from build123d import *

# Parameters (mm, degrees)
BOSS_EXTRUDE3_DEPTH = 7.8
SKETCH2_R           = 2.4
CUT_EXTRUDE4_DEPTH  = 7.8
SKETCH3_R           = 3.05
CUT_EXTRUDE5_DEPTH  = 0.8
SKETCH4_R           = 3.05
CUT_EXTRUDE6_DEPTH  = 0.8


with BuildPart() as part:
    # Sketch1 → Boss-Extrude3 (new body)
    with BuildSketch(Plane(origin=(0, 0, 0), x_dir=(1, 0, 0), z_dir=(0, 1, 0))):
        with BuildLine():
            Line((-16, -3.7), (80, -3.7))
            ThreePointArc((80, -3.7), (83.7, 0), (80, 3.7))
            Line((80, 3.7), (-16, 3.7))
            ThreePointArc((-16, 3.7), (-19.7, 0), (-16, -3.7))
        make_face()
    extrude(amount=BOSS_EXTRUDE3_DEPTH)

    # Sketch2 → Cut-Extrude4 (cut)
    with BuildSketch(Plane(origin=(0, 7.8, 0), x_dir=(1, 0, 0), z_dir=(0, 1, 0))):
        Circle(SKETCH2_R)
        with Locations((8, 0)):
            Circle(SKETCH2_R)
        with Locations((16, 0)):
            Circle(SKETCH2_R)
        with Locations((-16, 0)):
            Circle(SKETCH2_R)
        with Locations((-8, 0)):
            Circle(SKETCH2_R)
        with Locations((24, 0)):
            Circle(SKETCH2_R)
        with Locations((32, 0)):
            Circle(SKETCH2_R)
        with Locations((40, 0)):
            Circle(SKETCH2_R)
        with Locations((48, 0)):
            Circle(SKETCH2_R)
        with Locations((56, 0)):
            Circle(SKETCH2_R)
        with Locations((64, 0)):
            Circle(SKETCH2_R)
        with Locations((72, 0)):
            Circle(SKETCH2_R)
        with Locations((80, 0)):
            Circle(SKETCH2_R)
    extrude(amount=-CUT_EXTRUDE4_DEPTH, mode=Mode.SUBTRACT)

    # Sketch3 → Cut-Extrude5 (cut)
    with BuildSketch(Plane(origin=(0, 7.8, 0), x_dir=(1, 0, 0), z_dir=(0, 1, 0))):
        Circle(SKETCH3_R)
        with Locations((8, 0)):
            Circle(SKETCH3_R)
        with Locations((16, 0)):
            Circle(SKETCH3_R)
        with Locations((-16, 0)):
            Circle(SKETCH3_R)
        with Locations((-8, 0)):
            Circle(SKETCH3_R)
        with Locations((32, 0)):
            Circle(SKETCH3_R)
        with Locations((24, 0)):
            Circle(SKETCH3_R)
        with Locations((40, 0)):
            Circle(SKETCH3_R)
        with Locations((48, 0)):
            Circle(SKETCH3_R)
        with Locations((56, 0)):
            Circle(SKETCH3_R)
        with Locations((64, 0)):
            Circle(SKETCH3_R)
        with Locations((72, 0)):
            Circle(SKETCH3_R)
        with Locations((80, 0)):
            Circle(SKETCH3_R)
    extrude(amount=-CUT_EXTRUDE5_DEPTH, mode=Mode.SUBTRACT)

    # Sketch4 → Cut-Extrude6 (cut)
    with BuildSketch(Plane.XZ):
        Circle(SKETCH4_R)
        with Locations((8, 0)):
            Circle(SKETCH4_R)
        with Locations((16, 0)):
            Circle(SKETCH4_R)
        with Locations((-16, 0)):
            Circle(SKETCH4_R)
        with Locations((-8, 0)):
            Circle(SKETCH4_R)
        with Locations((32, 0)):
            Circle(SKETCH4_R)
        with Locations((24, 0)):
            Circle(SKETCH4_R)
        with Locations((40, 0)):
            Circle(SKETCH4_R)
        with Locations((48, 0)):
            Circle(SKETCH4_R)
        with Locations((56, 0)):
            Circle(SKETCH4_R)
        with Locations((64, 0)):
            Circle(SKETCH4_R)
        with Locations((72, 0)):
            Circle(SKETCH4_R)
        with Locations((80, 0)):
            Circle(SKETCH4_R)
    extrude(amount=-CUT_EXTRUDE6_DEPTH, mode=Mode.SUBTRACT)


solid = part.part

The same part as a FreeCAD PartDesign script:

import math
import FreeCAD as App
import Part
import Sketcher

V = App.Vector
Q = App.Units.Quantity

doc = App.newDocument("Part")
params = doc.addObject("Spreadsheet::Sheet", "Params")
for row, (alias, value) in enumerate([
    ("sketch1_radius", "3.7 mm"),
    ("sketch1_width", "96 mm"),
    ("pad1_length", "7.8 mm"),
    ("sketch2_diameter", "4.8 mm"),
    ("pocket1_length", "7.8 mm"),
    ("sketch3_diameter", "6.1 mm"),
    ("pocket2_length", "0.8 mm"),
    ("sketch4_diameter", "6.1 mm"),
    ("pocket3_length", "0.8 mm"),
], start=1):
    params.set(f"A{row}", alias)
    params.set(f"B{row}", "=" + value)
    params.setAlias(f"B{row}", alias)

body = doc.addObject("PartDesign::Body", "Body")

# Sketch on XZ plane
sketch1 = doc.addObject("Sketcher::SketchObject", "Sketch")
body.addObject(sketch1)
sketch1.AttachmentSupport = (doc.XZ_Plane, [""])
sketch1.MapMode = "FlatFace"
sketch1.addGeometry([
    Part.LineSegment(V(-16, 3.7, 0), V(80, 3.7, 0)),
    Part.ArcOfCircle(Part.Circle(V(80, 0, 0), V(0, 0, 1), 3.7), math.radians(-90), math.radians(90)),
    Part.LineSegment(V(80, -3.7, 0), V(-16, -3.7, 0)),
    Part.ArcOfCircle(Part.Circle(V(-16, 0, 0), V(0, 0, 1), 3.7), math.radians(90), math.radians(270)),
], False)
sketch1.addConstraint([
    Sketcher.Constraint("Tangent", 0, 2, 1, 2),
    Sketcher.Constraint("Tangent", 1, 1, 2, 1),
    Sketcher.Constraint("Tangent", 2, 2, 3, 2),
    Sketcher.Constraint("Tangent", 3, 1, 0, 1),
    Sketcher.Constraint("Horizontal", 0),
    Sketcher.Constraint("Horizontal", 2),
    Sketcher.Constraint("PointOnObject", 1, 3, -1),
    Sketcher.Constraint("Radius", 1, Q("3.7 mm")),
    Sketcher.Constraint("DistanceX", 0, 1, 0, 2, Q("96 mm")),
    Sketcher.Constraint("DistanceX", -1, 1, 1, 3, Q("80 mm")),
])
sketch1.setExpression("Constraints[7]", "Params.sketch1_radius")
sketch1.setExpression("Constraints[8]", "Params.sketch1_width")
pad1 = doc.addObject("PartDesign::Pad", "Pad")
body.addObject(pad1)
pad1.Profile = sketch1
pad1.setExpression("Length", "Params.pad1_length")
pad1.Reversed = True

# Sketch on XZ plane
sketch2 = doc.addObject("Sketcher::SketchObject", "Sketch001")
body.addObject(sketch2)
sketch2.AttachmentSupport = (doc.XZ_Plane, [""])
sketch2.MapMode = "FlatFace"
sketch2.AttachmentOffset = App.Placement(V(0, 0, -7.8), App.Rotation())
sketch2.addGeometry([
    Part.Circle(V(0, 0, 0), V(0, 0, 1), 2.4),  # 0
    Part.Circle(V(8, 0, 0), V(0, 0, 1), 2.4),  # 1
    Part.Circle(V(16, 0, 0), V(0, 0, 1), 2.4),  # 2
    Part.Circle(V(-16, 0, 0), V(0, 0, 1), 2.4),  # 3
    Part.Circle(V(-8, 0, 0), V(0, 0, 1), 2.4),  # 4
    Part.Circle(V(24, 0, 0), V(0, 0, 1), 2.4),  # 5
    Part.Circle(V(32, 0, 0), V(0, 0, 1), 2.4),  # 6
    Part.Circle(V(40, 0, 0), V(0, 0, 1), 2.4),  # 7
    Part.Circle(V(48, 0, 0), V(0, 0, 1), 2.4),  # 8
    Part.Circle(V(56, 0, 0), V(0, 0, 1), 2.4),  # 9
    Part.Circle(V(64, 0, 0), V(0, 0, 1), 2.4),  # 10
    Part.Circle(V(72, 0, 0), V(0, 0, 1), 2.4),  # 11
    Part.Circle(V(80, 0, 0), V(0, 0, 1), 2.4),  # 12
], False)
sketch2.addConstraint([
    Sketcher.Constraint("Coincident", 0, 3, -1, 1),
    Sketcher.Constraint("Equal", 0, 1),
    Sketcher.Constraint("Equal", 1, 2),
    Sketcher.Constraint("Equal", 2, 3),
    Sketcher.Constraint("Equal", 3, 4),
    Sketcher.Constraint("Equal", 4, 5),
    Sketcher.Constraint("Equal", 5, 6),
    Sketcher.Constraint("Equal", 6, 7),
    Sketcher.Constraint("Equal", 7, 8),
    Sketcher.Constraint("Equal", 8, 9),
    Sketcher.Constraint("Equal", 9, 10),
    Sketcher.Constraint("Equal", 10, 11),
    Sketcher.Constraint("Equal", 11, 12),
    Sketcher.Constraint("Symmetric", 2, 3, 3, 3, -1, 1),
    Sketcher.Constraint("Symmetric", 1, 3, 4, 3, -1, 1),
    Sketcher.Constraint("PointOnObject", 1, 3, -1),
    Sketcher.Constraint("PointOnObject", 2, 3, -1),
    Sketcher.Constraint("PointOnObject", 5, 3, -1),
    Sketcher.Constraint("PointOnObject", 6, 3, -1),
    Sketcher.Constraint("PointOnObject", 7, 3, -1),
    Sketcher.Constraint("PointOnObject", 8, 3, -1),
    Sketcher.Constraint("PointOnObject", 9, 3, -1),
    Sketcher.Constraint("PointOnObject", 10, 3, -1),
    Sketcher.Constraint("PointOnObject", 11, 3, -1),
    Sketcher.Constraint("PointOnObject", 12, 3, -1),
    Sketcher.Constraint("Diameter", 0, Q("4.8 mm")),
    Sketcher.Constraint("DistanceX", -1, 1, 1, 3, Q("8 mm")),
    Sketcher.Constraint("DistanceX", -1, 1, 2, 3, Q("16 mm")),
    Sketcher.Constraint("DistanceX", -1, 1, 5, 3, Q("24 mm")),
    Sketcher.Constraint("DistanceX", -1, 1, 6, 3, Q("32 mm")),
    Sketcher.Constraint("DistanceX", -1, 1, 7, 3, Q("40 mm")),
    Sketcher.Constraint("DistanceX", -1, 1, 8, 3, Q("48 mm")),
    Sketcher.Constraint("DistanceX", -1, 1, 9, 3, Q("56 mm")),
    Sketcher.Constraint("DistanceX", -1, 1, 10, 3, Q("64 mm")),
    Sketcher.Constraint("DistanceX", -1, 1, 11, 3, Q("72 mm")),
    Sketcher.Constraint("DistanceX", -1, 1, 12, 3, Q("80 mm")),
])
sketch2.setExpression("Constraints[25]", "Params.sketch2_diameter")
pocket1 = doc.addObject("PartDesign::Pocket", "Pocket")
body.addObject(pocket1)
pocket1.Profile = sketch2
pocket1.setExpression("Length", "Params.pocket1_length")
pocket1.Reversed = True

# Sketch on XZ plane
sketch3 = doc.addObject("Sketcher::SketchObject", "Sketch002")
body.addObject(sketch3)
sketch3.AttachmentSupport = (doc.XZ_Plane, [""])
sketch3.MapMode = "FlatFace"
sketch3.AttachmentOffset = App.Placement(V(0, 0, -7.8), App.Rotation())
sketch3.addGeometry([
    Part.Circle(V(0, 0, 0), V(0, 0, 1), 3),  # 0
    Part.Circle(V(8, 0, 0), V(0, 0, 1), 3),  # 1
    Part.Circle(V(16, 0, 0), V(0, 0, 1), 3),  # 2
    Part.Circle(V(-16, 0, 0), V(0, 0, 1), 3),  # 3
    Part.Circle(V(-8, 0, 0), V(0, 0, 1), 3),  # 4
    Part.Circle(V(32, 0, 0), V(0, 0, 1), 3),  # 5
    Part.Circle(V(24, 0, 0), V(0, 0, 1), 3),  # 6
    Part.Circle(V(40, 0, 0), V(0, 0, 1), 3),  # 7
    Part.Circle(V(48, 0, 0), V(0, 0, 1), 3),  # 8
    Part.Circle(V(56, 0, 0), V(0, 0, 1), 3),  # 9
    Part.Circle(V(64, 0, 0), V(0, 0, 1), 3),  # 10
    Part.Circle(V(72, 0, 0), V(0, 0, 1), 3),  # 11
    Part.Circle(V(80, 0, 0), V(0, 0, 1), 3),  # 12
], False)
sketch3.addConstraint([
    Sketcher.Constraint("Coincident", 0, 3, -1, 1),
    Sketcher.Constraint("Equal", 0, 1),
    Sketcher.Constraint("Equal", 1, 2),
    Sketcher.Constraint("Equal", 2, 3),
    Sketcher.Constraint("Equal", 3, 4),
    Sketcher.Constraint("Equal", 4, 5),
    Sketcher.Constraint("Equal", 5, 6),
    Sketcher.Constraint("Equal", 6, 7),
    Sketcher.Constraint("Equal", 7, 8),
    Sketcher.Constraint("Equal", 8, 9),
    Sketcher.Constraint("Equal", 9, 10),
    Sketcher.Constraint("Equal", 10, 11),
    Sketcher.Constraint("Equal", 11, 12),
    Sketcher.Constraint("Symmetric", 2, 3, 3, 3, -1, 1),
    Sketcher.Constraint("Symmetric", 1, 3, 4, 3, -1, 1),
    Sketcher.Constraint("PointOnObject", 1, 3, -1),
    Sketcher.Constraint("PointOnObject", 2, 3, -1),
    Sketcher.Constraint("PointOnObject", 5, 3, -1),
    Sketcher.Constraint("PointOnObject", 6, 3, -1),
    Sketcher.Constraint("PointOnObject", 7, 3, -1),
    Sketcher.Constraint("PointOnObject", 8, 3, -1),
    Sketcher.Constraint("PointOnObject", 9, 3, -1),
    Sketcher.Constraint("PointOnObject", 10, 3, -1),
    Sketcher.Constraint("PointOnObject", 11, 3, -1),
    Sketcher.Constraint("PointOnObject", 12, 3, -1),
    Sketcher.Constraint("Diameter", 0, Q("6.1 mm")),
    Sketcher.Constraint("DistanceX", -1, 1, 1, 3, Q("8 mm")),
    Sketcher.Constraint("DistanceX", -1, 1, 2, 3, Q("16 mm")),
    Sketcher.Constraint("DistanceX", -1, 1, 5, 3, Q("32 mm")),
    Sketcher.Constraint("DistanceX", -1, 1, 6, 3, Q("24 mm")),
    Sketcher.Constraint("DistanceX", -1, 1, 7, 3, Q("40 mm")),
    Sketcher.Constraint("DistanceX", -1, 1, 8, 3, Q("48 mm")),
    Sketcher.Constraint("DistanceX", -1, 1, 9, 3, Q("56 mm")),
    Sketcher.Constraint("DistanceX", -1, 1, 10, 3, Q("64 mm")),
    Sketcher.Constraint("DistanceX", -1, 1, 11, 3, Q("72 mm")),
    Sketcher.Constraint("DistanceX", -1, 1, 12, 3, Q("80 mm")),
])
sketch3.setExpression("Constraints[25]", "Params.sketch3_diameter")
pocket2 = doc.addObject("PartDesign::Pocket", "Pocket001")
body.addObject(pocket2)
pocket2.Profile = sketch3
pocket2.setExpression("Length", "Params.pocket2_length")
pocket2.Reversed = True

# Sketch on XZ plane
sketch4 = doc.addObject("Sketcher::SketchObject", "Sketch003")
body.addObject(sketch4)
sketch4.AttachmentSupport = (doc.XZ_Plane, [""])
sketch4.MapMode = "FlatFace"
sketch4.addGeometry([
    Part.Circle(V(0, 0, 0), V(0, 0, 1), 3),  # 0
    Part.Circle(V(8, 0, 0), V(0, 0, 1), 3),  # 1
    Part.Circle(V(16, 0, 0), V(0, 0, 1), 3),  # 2
    Part.Circle(V(-16, 0, 0), V(0, 0, 1), 3),  # 3
    Part.Circle(V(-8, 0, 0), V(0, 0, 1), 3),  # 4
    Part.Circle(V(32, 0, 0), V(0, 0, 1), 3),  # 5
    Part.Circle(V(24, 0, 0), V(0, 0, 1), 3),  # 6
    Part.Circle(V(40, 0, 0), V(0, 0, 1), 3),  # 7
    Part.Circle(V(48, 0, 0), V(0, 0, 1), 3),  # 8
    Part.Circle(V(56, 0, 0), V(0, 0, 1), 3),  # 9
    Part.Circle(V(64, 0, 0), V(0, 0, 1), 3),  # 10
    Part.Circle(V(72, 0, 0), V(0, 0, 1), 3),  # 11
    Part.Circle(V(80, 0, 0), V(0, 0, 1), 3),  # 12
], False)
sketch4.addConstraint([
    Sketcher.Constraint("Coincident", 0, 3, -1, 1),
    Sketcher.Constraint("Equal", 0, 1),
    Sketcher.Constraint("Equal", 1, 2),
    Sketcher.Constraint("Equal", 2, 3),
    Sketcher.Constraint("Equal", 3, 4),
    Sketcher.Constraint("Equal", 4, 5),
    Sketcher.Constraint("Equal", 5, 6),
    Sketcher.Constraint("Equal", 6, 7),
    Sketcher.Constraint("Equal", 7, 8),
    Sketcher.Constraint("Equal", 8, 9),
    Sketcher.Constraint("Equal", 9, 10),
    Sketcher.Constraint("Equal", 10, 11),
    Sketcher.Constraint("Equal", 11, 12),
    Sketcher.Constraint("Symmetric", 2, 3, 3, 3, -1, 1),
    Sketcher.Constraint("Symmetric", 1, 3, 4, 3, -1, 1),
    Sketcher.Constraint("PointOnObject", 1, 3, -1),
    Sketcher.Constraint("PointOnObject", 2, 3, -1),
    Sketcher.Constraint("PointOnObject", 5, 3, -1),
    Sketcher.Constraint("PointOnObject", 6, 3, -1),
    Sketcher.Constraint("PointOnObject", 7, 3, -1),
    Sketcher.Constraint("PointOnObject", 8, 3, -1),
    Sketcher.Constraint("PointOnObject", 9, 3, -1),
    Sketcher.Constraint("PointOnObject", 10, 3, -1),
    Sketcher.Constraint("PointOnObject", 11, 3, -1),
    Sketcher.Constraint("PointOnObject", 12, 3, -1),
    Sketcher.Constraint("Diameter", 0, Q("6.1 mm")),
    Sketcher.Constraint("DistanceX", -1, 1, 1, 3, Q("8 mm")),
    Sketcher.Constraint("DistanceX", -1, 1, 2, 3, Q("16 mm")),
    Sketcher.Constraint("DistanceX", -1, 1, 5, 3, Q("32 mm")),
    Sketcher.Constraint("DistanceX", -1, 1, 6, 3, Q("24 mm")),
    Sketcher.Constraint("DistanceX", -1, 1, 7, 3, Q("40 mm")),
    Sketcher.Constraint("DistanceX", -1, 1, 8, 3, Q("48 mm")),
    Sketcher.Constraint("DistanceX", -1, 1, 9, 3, Q("56 mm")),
    Sketcher.Constraint("DistanceX", -1, 1, 10, 3, Q("64 mm")),
    Sketcher.Constraint("DistanceX", -1, 1, 11, 3, Q("72 mm")),
    Sketcher.Constraint("DistanceX", -1, 1, 12, 3, Q("80 mm")),
])
sketch4.setExpression("Constraints[25]", "Params.sketch4_diameter")
pocket3 = doc.addObject("PartDesign::Pocket", "Pocket002")
body.addObject(pocket3)
pocket3.Profile = sketch4
pocket3.setExpression("Length", "Params.pocket3_length")

doc.recompute()
